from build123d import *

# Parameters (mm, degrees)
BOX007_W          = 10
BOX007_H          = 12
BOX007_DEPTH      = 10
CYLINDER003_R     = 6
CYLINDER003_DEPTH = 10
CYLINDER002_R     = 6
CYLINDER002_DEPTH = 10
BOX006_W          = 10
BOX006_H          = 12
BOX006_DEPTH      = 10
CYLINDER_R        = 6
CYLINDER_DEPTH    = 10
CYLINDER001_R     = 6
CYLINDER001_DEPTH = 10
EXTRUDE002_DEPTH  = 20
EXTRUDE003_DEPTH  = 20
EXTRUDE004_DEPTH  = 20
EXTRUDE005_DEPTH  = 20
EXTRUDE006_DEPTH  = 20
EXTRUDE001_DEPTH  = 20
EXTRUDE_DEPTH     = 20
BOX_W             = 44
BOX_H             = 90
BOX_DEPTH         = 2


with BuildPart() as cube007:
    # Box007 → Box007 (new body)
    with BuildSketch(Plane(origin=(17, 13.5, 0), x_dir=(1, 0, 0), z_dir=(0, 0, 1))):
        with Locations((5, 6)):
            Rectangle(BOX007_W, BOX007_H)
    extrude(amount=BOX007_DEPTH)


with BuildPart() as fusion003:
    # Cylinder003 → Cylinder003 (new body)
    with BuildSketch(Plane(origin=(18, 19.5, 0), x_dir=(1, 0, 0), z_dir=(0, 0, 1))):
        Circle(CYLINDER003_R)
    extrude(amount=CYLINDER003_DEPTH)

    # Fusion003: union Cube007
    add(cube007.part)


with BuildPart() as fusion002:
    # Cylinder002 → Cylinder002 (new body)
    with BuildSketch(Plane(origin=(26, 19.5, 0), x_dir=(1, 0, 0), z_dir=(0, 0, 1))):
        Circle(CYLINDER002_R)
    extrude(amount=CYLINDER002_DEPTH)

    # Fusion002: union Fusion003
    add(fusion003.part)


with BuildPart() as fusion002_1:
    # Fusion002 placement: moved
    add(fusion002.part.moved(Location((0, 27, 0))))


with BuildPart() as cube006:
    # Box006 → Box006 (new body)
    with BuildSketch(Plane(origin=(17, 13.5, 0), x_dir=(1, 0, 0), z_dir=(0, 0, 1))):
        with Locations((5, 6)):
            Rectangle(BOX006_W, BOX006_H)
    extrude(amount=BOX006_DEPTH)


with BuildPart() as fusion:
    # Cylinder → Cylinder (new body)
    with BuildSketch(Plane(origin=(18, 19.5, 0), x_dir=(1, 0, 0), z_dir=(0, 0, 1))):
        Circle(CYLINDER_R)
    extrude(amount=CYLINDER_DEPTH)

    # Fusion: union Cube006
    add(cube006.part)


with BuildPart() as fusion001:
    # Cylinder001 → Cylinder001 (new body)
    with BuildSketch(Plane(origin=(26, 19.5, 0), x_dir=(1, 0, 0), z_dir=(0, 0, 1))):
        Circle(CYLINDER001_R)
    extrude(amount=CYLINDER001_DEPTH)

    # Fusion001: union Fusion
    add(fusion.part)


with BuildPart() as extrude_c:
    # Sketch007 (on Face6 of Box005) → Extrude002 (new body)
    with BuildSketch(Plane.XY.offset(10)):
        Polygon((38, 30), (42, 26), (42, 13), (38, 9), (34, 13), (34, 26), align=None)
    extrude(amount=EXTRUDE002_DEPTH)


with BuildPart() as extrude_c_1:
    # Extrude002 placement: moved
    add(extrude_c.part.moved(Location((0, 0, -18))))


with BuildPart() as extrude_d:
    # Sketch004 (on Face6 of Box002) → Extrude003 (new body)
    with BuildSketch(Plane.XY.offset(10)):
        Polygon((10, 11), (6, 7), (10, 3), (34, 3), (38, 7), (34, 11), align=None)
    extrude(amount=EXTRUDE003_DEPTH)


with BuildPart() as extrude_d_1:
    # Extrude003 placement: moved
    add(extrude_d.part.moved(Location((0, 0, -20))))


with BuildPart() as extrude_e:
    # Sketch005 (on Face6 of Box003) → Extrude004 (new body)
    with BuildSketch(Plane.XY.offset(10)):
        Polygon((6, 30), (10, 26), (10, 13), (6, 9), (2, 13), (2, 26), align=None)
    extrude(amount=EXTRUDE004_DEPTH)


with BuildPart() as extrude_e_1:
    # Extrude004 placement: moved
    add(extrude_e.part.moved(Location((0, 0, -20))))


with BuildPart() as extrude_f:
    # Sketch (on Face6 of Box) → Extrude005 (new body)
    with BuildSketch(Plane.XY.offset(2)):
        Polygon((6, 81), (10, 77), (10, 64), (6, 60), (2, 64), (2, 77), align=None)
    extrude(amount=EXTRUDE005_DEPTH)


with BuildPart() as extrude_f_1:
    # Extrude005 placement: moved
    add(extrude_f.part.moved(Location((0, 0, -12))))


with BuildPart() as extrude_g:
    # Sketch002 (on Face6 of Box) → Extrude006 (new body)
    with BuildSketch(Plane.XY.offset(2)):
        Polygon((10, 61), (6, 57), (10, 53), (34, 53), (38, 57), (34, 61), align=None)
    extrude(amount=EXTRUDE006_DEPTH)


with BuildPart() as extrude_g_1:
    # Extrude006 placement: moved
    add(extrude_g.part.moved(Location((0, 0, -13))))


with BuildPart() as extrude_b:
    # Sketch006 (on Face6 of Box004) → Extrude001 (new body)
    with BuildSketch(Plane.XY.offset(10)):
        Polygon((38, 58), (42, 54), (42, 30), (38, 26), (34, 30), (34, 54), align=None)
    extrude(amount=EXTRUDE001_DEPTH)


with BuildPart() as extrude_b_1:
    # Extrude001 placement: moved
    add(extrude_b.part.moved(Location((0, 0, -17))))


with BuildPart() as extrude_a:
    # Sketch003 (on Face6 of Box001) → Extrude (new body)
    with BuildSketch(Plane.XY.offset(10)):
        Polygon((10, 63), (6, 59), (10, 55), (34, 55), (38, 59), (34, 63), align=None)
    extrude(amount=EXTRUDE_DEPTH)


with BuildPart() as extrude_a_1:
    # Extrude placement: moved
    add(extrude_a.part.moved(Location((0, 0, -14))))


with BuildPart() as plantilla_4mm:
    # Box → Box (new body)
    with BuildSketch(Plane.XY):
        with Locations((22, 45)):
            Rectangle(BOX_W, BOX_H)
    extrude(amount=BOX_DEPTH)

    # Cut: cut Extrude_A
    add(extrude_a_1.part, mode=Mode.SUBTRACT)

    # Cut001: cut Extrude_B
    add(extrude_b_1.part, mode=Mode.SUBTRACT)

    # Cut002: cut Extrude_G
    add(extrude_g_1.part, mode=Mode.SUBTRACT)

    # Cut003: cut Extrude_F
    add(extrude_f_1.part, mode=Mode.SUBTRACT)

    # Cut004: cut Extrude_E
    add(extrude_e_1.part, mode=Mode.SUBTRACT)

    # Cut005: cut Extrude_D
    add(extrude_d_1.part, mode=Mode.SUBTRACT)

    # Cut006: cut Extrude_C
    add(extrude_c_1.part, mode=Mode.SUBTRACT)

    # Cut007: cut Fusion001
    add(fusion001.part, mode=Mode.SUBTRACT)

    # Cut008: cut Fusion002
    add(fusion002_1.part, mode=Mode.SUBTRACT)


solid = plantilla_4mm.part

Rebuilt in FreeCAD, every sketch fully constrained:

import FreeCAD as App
import Part
import Sketcher
Q = App.Units.Quantity


def add_polygon(sketch, points):
    """Adds a closed chain of lines whose ends are joined by coincident constraints."""
    first, n = sketch.GeometryCount, len(points)
    for a, b in zip(points, points[1:] + points[:1]):
        sketch.addGeometry(Part.LineSegment(App.Vector(*a, 0), App.Vector(*b, 0)), False)
    for i in range(n):
        sketch.addConstraint(Sketcher.Constraint("Coincident", first + i, 2, first + (i + 1) % n, 1))

doc = App.newDocument("Part")
params = doc.addObject("Spreadsheet::Sheet", "Params")
for row, (alias, value) in enumerate([
    ("sketch1_width", "10 mm"),
    ("sketch1_height", "12 mm"),
    ("pad1_length", "10 mm"),
    ("sketch2_diameter", "12 mm"),
    ("pad2_length", "10 mm"),
    ("sketch3_diameter", "12 mm"),
    ("pad3_length", "10 mm"),
    ("sketch4_width", "10 mm"),
    ("sketch4_height", "12 mm"),
    ("pad4_length", "10 mm"),
    ("sketch5_diameter", "12 mm"),
    ("pad5_length", "10 mm"),
    ("sketch6_diameter", "12 mm"),
    ("pad6_length", "10 mm"),
    ("sketch7_height", "13 mm"),
    ("pad7_length", "20 mm"),
    ("sketch8_width", "24 mm"),
    ("pad8_length", "20 mm"),
    ("sketch9_height", "13 mm"),
    ("pad9_length", "20 mm"),
    ("sketch10_height", "13 mm"),
    ("pad10_length", "20 mm"),
    ("sketch11_width", "24 mm"),
    ("pad11_length", "20 mm"),
    ("sketch12_height", "24 mm"),
    ("pad12_length", "20 mm"),
    ("sketch13_width", "24 mm"),
    ("pad13_length", "20 mm"),
    ("sketch14_width", "44 mm"),
    ("sketch14_height", "90 mm"),
    ("pad14_length", "2 mm"),
], start=1):
    params.set(f"A{row}", alias)
    params.set(f"B{row}", "=" + value)
    params.setAlias(f"B{row}", alias)

body = doc.addObject("PartDesign::Body", "Body")

# Sketch on XY plane
sketch1 = body.newObject("Sketcher::SketchObject", "Sketch")
sketch1.AttachmentSupport = (doc.getObject("XY_Plane"), [""])
sketch1.MapMode = "FlatFace"
add_polygon(sketch1, [(17, 25.5), (17, 13.5), (27, 13.5), (27, 25.5)])  # lines 0-3
sketch1.addConstraint([
    Sketcher.Constraint("Vertical", 0),
    Sketcher.Constraint("Horizontal", 1),
    Sketcher.Constraint("Vertical", 2),
    Sketcher.Constraint("Horizontal", 3),
    Sketcher.Constraint("DistanceX", 1, 1, 1, 2, Q("10 mm")),
    Sketcher.Constraint("DistanceY", 0, 2, 0, 1, Q("12 mm")),
    Sketcher.Constraint("DistanceX", -1, 1, 0, 2, Q("17 mm")),
    Sketcher.Constraint("DistanceY", -1, 1, 0, 2, Q("13.5 mm")),
])
sketch1.setExpression("Constraints[8]", "Params.sketch1_width")
sketch1.setExpression("Constraints[9]", "Params.sketch1_height")
pad1 = body.newObject("PartDesign::Pad", "Pad")
pad1.Profile = sketch1
pad1.setExpression("Length", "Params.pad1_length")
body2 = doc.addObject("PartDesign::Body", "Body001")

# Sketch on XY plane
sketch2 = body2.newObject("Sketcher::SketchObject", "Sketch001")
sketch2.AttachmentSupport = (doc.getObject("XY_Plane001"), [""])
sketch2.MapMode = "FlatFace"
sketch2.addGeometry(Part.Circle(App.Vector(18, 19.5, 0), App.Vector(0, 0, 1), 6), False)
sketch2.addConstraint([
    Sketcher.Constraint("Diameter", 0, Q("12 mm")),
    Sketcher.Constraint("DistanceX", -1, 1, 0, 3, Q("18 mm")),
    Sketcher.Constraint("DistanceY", -1, 1, 0, 3, Q("19.5 mm")),
])
sketch2.setExpression("Constraints[0]", "Params.sketch2_diameter")
pad2 = body2.newObject("PartDesign::Pad", "Pad001")
pad2.Profile = sketch2
pad2.setExpression("Length", "Params.pad2_length")
doc.recompute()

boolean = body2.newObject("PartDesign::Boolean", "Boolean")
boolean.Type = "Fuse"
boolean.addObjects([body])
body3 = doc.addObject("PartDesign::Body", "Body002")

# Sketch on XY plane
sketch3 = body3.newObject("Sketcher::SketchObject", "Sketch002")
sketch3.AttachmentSupport = (doc.getObject("XY_Plane002"), [""])
sketch3.MapMode = "FlatFace"
sketch3.addGeometry(Part.Circle(App.Vector(26, 19.5, 0), App.Vector(0, 0, 1), 6), False)
sketch3.addConstraint([
    Sketcher.Constraint("Diameter", 0, Q("12 mm")),
    Sketcher.Constraint("DistanceX", -1, 1, 0, 3, Q("26 mm")),
    Sketcher.Constraint("DistanceY", -1, 1, 0, 3, Q("19.5 mm")),
])
sketch3.setExpression("Constraints[0]", "Params.sketch3_diameter")
pad3 = body3.newObject("PartDesign::Pad", "Pad002")
pad3.Profile = sketch3
pad3.setExpression("Length", "Params.pad3_length")
doc.recompute()

boolean2 = body3.newObject("PartDesign::Boolean", "Boolean001")
boolean2.Type = "Fuse"
boolean2.addObjects([body2])
body4 = doc.addObject("PartDesign::Body", "Body003")
doc.recompute()

body3.Placement = App.Placement(App.Vector(0, 27, 0), App.Rotation(App.Vector(0, 0, 1), 0))
boolean3 = body4.newObject("PartDesign::Boolean", "Boolean002")
boolean3.Type = "Fuse"
boolean3.addObjects([body3])
body5 = doc.addObject("PartDesign::Body", "Body004")

# Sketch on XY plane
sketch4 = body5.newObject("Sketcher::SketchObject", "Sketch003")
sketch4.AttachmentSupport = (doc.getObject("XY_Plane004"), [""])
sketch4.MapMode = "FlatFace"
add_polygon(sketch4, [(17, 25.5), (17, 13.5), (27, 13.5), (27, 25.5)])  # lines 0-3
sketch4.addConstraint([
    Sketcher.Constraint("Vertical", 0),
    Sketcher.Constraint("Horizontal", 1),
    Sketcher.Constraint("Vertical", 2),
    Sketcher.Constraint("Horizontal", 3),
    Sketcher.Constraint("DistanceX", 1, 1, 1, 2, Q("10 mm")),
    Sketcher.Constraint("DistanceY", 0, 2, 0, 1, Q("12 mm")),
    Sketcher.Constraint("DistanceX", -1, 1, 0, 2, Q("17 mm")),
    Sketcher.Constraint("DistanceY", -1, 1, 0, 2, Q("13.5 mm")),
])
sketch4.setExpression("Constraints[8]", "Params.sketch4_width")
sketch4.setExpression("Constraints[9]", "Params.sketch4_height")
pad4 = body5.newObject("PartDesign::Pad", "Pad003")
pad4.Profile = sketch4
pad4.setExpression("Length", "Params.pad4_length")
body6 = doc.addObject("PartDesign::Body", "Body005")

# Sketch on XY plane
sketch5 = body6.newObject("Sketcher::SketchObject", "Sketch004")
sketch5.AttachmentSupport = (doc.getObject("XY_Plane005"), [""])
sketch5.MapMode = "FlatFace"
sketch5.addGeometry(Part.Circle(App.Vector(18, 19.5, 0), App.Vector(0, 0, 1), 6), False)
sketch5.addConstraint([
    Sketcher.Constraint("Diameter", 0, Q("12 mm")),
    Sketcher.Constraint("DistanceX", -1, 1, 0, 3, Q("18 mm")),
    Sketcher.Constraint("DistanceY", -1, 1, 0, 3, Q("19.5 mm")),
])
sketch5.setExpression("Constraints[0]", "Params.sketch5_diameter")
pad5 = body6.newObject("PartDesign::Pad", "Pad004")
pad5.Profile = sketch5
pad5.setExpression("Length", "Params.pad5_length")
doc.recompute()

boolean4 = body6.newObject("PartDesign::Boolean", "Boolean003")
boolean4.Type = "Fuse"
boolean4.addObjects([body5])
body7 = doc.addObject("PartDesign::Body", "Body006")

# Sketch on XY plane
sketch6 = body7.newObject("Sketcher::SketchObject", "Sketch005")
sketch6.AttachmentSupport = (doc.getObject("XY_Plane006"), [""])
sketch6.MapMode = "FlatFace"
sketch6.addGeometry(Part.Circle(App.Vector(26, 19.5, 0), App.Vector(0, 0, 1), 6), False)
sketch6.addConstraint([
    Sketcher.Constraint("Diameter", 0, Q("12 mm")),
    Sketcher.Constraint("DistanceX", -1, 1, 0, 3, Q("26 mm")),
    Sketcher.Constraint("DistanceY", -1, 1, 0, 3, Q("19.5 mm")),
])
sketch6.setExpression("Constraints[0]", "Params.sketch6_diameter")
pad6 = body7.newObject("PartDesign::Pad", "Pad005")
pad6.Profile = sketch6
pad6.setExpression("Length", "Params.pad6_length")
doc.recompute()

boolean5 = body7.newObject("PartDesign::Boolean", "Boolean004")
boolean5.Type = "Fuse"
boolean5.addObjects([body6])
body8 = doc.addObject("PartDesign::Body", "Body007")

# Sketch on XY plane
sketch7 = body8.newObject("Sketcher::SketchObject", "Sketch006")
sketch7.AttachmentSupport = (doc.getObject("XY_Plane007"), [""])
sketch7.MapMode = "FlatFace"
sketch7.AttachmentOffset = App.Placement(App.Vector(0, 0, 10), App.Rotation())
add_polygon(sketch7, [(42, 26), (38, 30), (34, 26), (34, 13), (38, 9), (42, 13)])  # lines 0-5
sketch7.addConstraint([
    Sketcher.Constraint("Vertical", 2),
    Sketcher.Constraint("Vertical", 5),
    Sketcher.Constraint("Perpendicular", 0, 1),
    Sketcher.Constraint("Perpendicular", 1, 3),
    Sketcher.Constraint("Perpendicular", 3, 4),
    Sketcher.Constraint("Horizontal", 2, 2, 4, 2),
    Sketcher.Constraint("Horizontal", 1, 2, 5, 2),
    Sketcher.Constraint("Vertical", 0, 2, 3, 2),
    Sketcher.Constraint("DistanceY", 2, 2, 2, 1, Q("13 mm")),
    Sketcher.Constraint("DistanceX", -1, 1, 0, 2, Q("38 mm")),
    Sketcher.Constraint("DistanceY", -1, 1, 0, 2, Q("30 mm")),
    Sketcher.Constraint("DistanceX", -1, 1, 1, 2, Q("34 mm")),
])
sketch7.setExpression("Constraints[14]", "Params.sketch7_height")
pad7 = body8.newObject("PartDesign::Pad", "Pad006")
pad7.Profile = sketch7
pad7.setExpression("Length", "Params.pad7_length")
body9 = doc.addObject("PartDesign::Body", "Body008")
doc.recompute()

body8.Placement = App.Placement(App.Vector(0, 0, -18), App.Rotation(App.Vector(0, 0, 1), 0))
boolean6 = body9.newObject("PartDesign::Boolean", "Boolean005")
boolean6.Type = "Fuse"
boolean6.addObjects([body8])
body10 = doc.addObject("PartDesign::Body", "Body009")

# Sketch on XY plane
sketch8 = body10.newObject("Sketcher::SketchObject", "Sketch007")
sketch8.AttachmentSupport = (doc.getObject("XY_Plane009"), [""])
sketch8.MapMode = "FlatFace"
sketch8.AttachmentOffset = App.Placement(App.Vector(0, 0, 10), App.Rotation())
add_polygon(sketch8, [(10, 11), (6, 7), (10, 3), (34, 3), (38, 7), (34, 11)])  # lines 0-5
sketch8.addConstraint([
    Sketcher.Constraint("Horizontal", 2),
    Sketcher.Constraint("Horizontal", 5),
    Sketcher.Constraint("Perpendicular", 0, 1),
    Sketcher.Constraint("Perpendicular", 1, 3),
    Sketcher.Constraint("Perpendicular", 3, 4),
    Sketcher.Constraint("Horizontal", 0, 2, 3, 2),
    Sketcher.Constraint("Vertical", 2, 2, 4, 2),
    Sketcher.Constraint("Vertical", 1, 2, 5, 2),
    Sketcher.Constraint("DistanceX", 2, 1, 2, 2, Q("24 mm")),
    Sketcher.Constraint("DistanceX", -1, 1, 0, 2, Q("6 mm")),
    Sketcher.Constraint("DistanceY", -1, 1, 0, 2, Q("7 mm")),
    Sketcher.Constraint("DistanceX", -1, 1, 1, 2, Q("10 mm")),
])
sketch8.setExpression("Constraints[14]", "Params.sketch8_width")
pad8 = body10.newObject("PartDesign::Pad", "Pad007")
pad8.Profile = sketch8
pad8.setExpression("Length", "Params.pad8_length")
body11 = doc.addObject("PartDesign::Body", "Body010")
doc.recompute()

body10.Placement = App.Placement(App.Vector(0, 0, -20), App.Rotation(App.Vector(0, 0, 1), 0))
boolean7 = body11.newObject("PartDesign::Boolean", "Boolean006")
boolean7.Type = "Fuse"
boolean7.addObjects([body10])
body12 = doc.addObject("PartDesign::Body", "Body011")

# Sketch on XY plane
sketch9 = body12.newObject("Sketcher::SketchObject", "Sketch008")
sketch9.AttachmentSupport = (doc.getObject("XY_Plane011"), [""])
sketch9.MapMode = "FlatFace"
sketch9.AttachmentOffset = App.Placement(App.Vector(0, 0, 10), App.Rotation())
add_polygon(sketch9, [(10, 26), (6, 30), (2, 26), (2, 13), (6, 9), (10, 13)])  # lines 0-5
sketch9.addConstraint([
    Sketcher.Constraint("Vertical", 2),
    Sketcher.Constraint("Vertical", 5),
    Sketcher.Constraint("Perpendicular", 0, 1),
    Sketcher.Constraint("Perpendicular", 1, 3),
    Sketcher.Constraint("Perpendicular", 3, 4),
    Sketcher.Constraint("Horizontal", 2, 2, 4, 2),
    Sketcher.Constraint("Horizontal", 1, 2, 5, 2),
    Sketcher.Constraint("Vertical", 0, 2, 3, 2),
    Sketcher.Constraint("DistanceY", 2, 2, 2, 1, Q("13 mm")),
    Sketcher.Constraint("DistanceX", -1, 1, 0, 2, Q("6 mm")),
    Sketcher.Constraint("DistanceY", -1, 1, 0, 2, Q("30 mm")),
    Sketcher.Constraint("DistanceX", -1, 1, 1, 2, Q("2 mm")),
])
sketch9.setExpression("Constraints[14]", "Params.sketch9_height")
pad9 = body12.newObject("PartDesign::Pad", "Pad008")
pad9.Profile = sketch9
pad9.setExpression("Length", "Params.pad9_length")
body13 = doc.addObject("PartDesign::Body", "Body012")
doc.recompute()

body12.Placement = App.Placement(App.Vector(0, 0, -20), App.Rotation(App.Vector(0, 0, 1), 0))
boolean8 = body13.newObject("PartDesign::Boolean", "Boolean007")
boolean8.Type = "Fuse"
boolean8.addObjects([body12])
body14 = doc.addObject("PartDesign::Body", "Body013")

# Sketch on XY plane
sketch10 = body14.newObject("Sketcher::SketchObject", "Sketch009")
sketch10.AttachmentSupport = (doc.getObject("XY_Plane013"), [""])
sketch10.MapMode = "FlatFace"
sketch10.AttachmentOffset = App.Placement(App.Vector(0, 0, 2), App.Rotation())
add_polygon(sketch10, [(10, 77), (6, 81), (2, 77), (2, 64), (6, 60), (10, 64)])  # lines 0-5
sketch10.addConstraint([
    Sketcher.Constraint("Vertical", 2),
    Sketcher.Constraint("Vertical", 5),
    Sketcher.Constraint("Perpendicular", 0, 1),
    Sketcher.Constraint("Perpendicular", 1, 3),
    Sketcher.Constraint("Perpendicular", 3, 4),
    Sketcher.Constraint("Horizontal", 2, 2, 4, 2),
    Sketcher.Constraint("Horizontal", 1, 2, 5, 2),
    Sketcher.Constraint("Vertical", 0, 2, 3, 2),
    Sketcher.Constraint("DistanceY", 2, 2, 2, 1, Q("13 mm")),
    Sketcher.Constraint("DistanceX", -1, 1, 0, 2, Q("6 mm")),
    Sketcher.Constraint("DistanceY", -1, 1, 0, 2, Q("81 mm")),
    Sketcher.Constraint("DistanceX", -1, 1, 1, 2, Q("2 mm")),
])
sketch10.setExpression("Constraints[14]", "Params.sketch10_height")
pad10 = body14.newObject("PartDesign::Pad", "Pad009")
pad10.Profile = sketch10
pad10.setExpression("Length", "Params.pad10_length")
body15 = doc.addObject("PartDesign::Body", "Body014")
doc.recompute()

body14.Placement = App.Placement(App.Vector(0, 0, -12), App.Rotation(App.Vector(0, 0, 1), 0))
boolean9 = body15.newObject("PartDesign::Boolean", "Boolean008")
boolean9.Type = "Fuse"
boolean9.addObjects([body14])
body16 = doc.addObject("PartDesign::Body", "Body015")

# Sketch on XY plane
sketch11 = body16.newObject("Sketcher::SketchObject", "Sketch010")
sketch11.AttachmentSupport = (doc.getObject("XY_Plane015"), [""])
sketch11.MapMode = "FlatFace"
sketch11.AttachmentOffset = App.Placement(App.Vector(0, 0, 2), App.Rotation())
add_polygon(sketch11, [(10, 61), (6, 57), (10, 53), (34, 53), (38, 57), (34, 61)])  # lines 0-5
sketch11.addConstraint([
    Sketcher.Constraint("Horizontal", 2),
    Sketcher.Constraint("Horizontal", 5),
    Sketcher.Constraint("Perpendicular", 0, 1),
    Sketcher.Constraint("Perpendicular", 1, 3),
    Sketcher.Constraint("Perpendicular", 3, 4),
    Sketcher.Constraint("Horizontal", 0, 2, 3, 2),
    Sketcher.Constraint("Vertical", 2, 2, 4, 2),
    Sketcher.Constraint("Vertical", 1, 2, 5, 2),
    Sketcher.Constraint("DistanceX", 2, 1, 2, 2, Q("24 mm")),
    Sketcher.Constraint("DistanceX", -1, 1, 0, 2, Q("6 mm")),
    Sketcher.Constraint("DistanceY", -1, 1, 0, 2, Q("57 mm")),
    Sketcher.Constraint("DistanceX", -1, 1, 1, 2, Q("10 mm")),
])
sketch11.setExpression("Constraints[14]", "Params.sketch11_width")
pad11 = body16.newObject("PartDesign::Pad", "Pad010")
pad11.Profile = sketch11
pad11.setExpression("Length", "Params.pad11_length")
body17 = doc.addObject("PartDesign::Body", "Body016")
doc.recompute()

body16.Placement = App.Placement(App.Vector(0, 0, -13), App.Rotation(App.Vector(0, 0, 1), 0))
boolean10 = body17.newObject("PartDesign::Boolean", "Boolean009")
boolean10.Type = "Fuse"
boolean10.addObjects([body16])
body18 = doc.addObject("PartDesign::Body", "Body017")

# Sketch on XY plane
sketch12 = body18.newObject("Sketcher::SketchObject", "Sketch011")
sketch12.AttachmentSupport = (doc.getObject("XY_Plane017"), [""])
sketch12.MapMode = "FlatFace"
sketch12.AttachmentOffset = App.Placement(App.Vector(0, 0, 10), App.Rotation())
add_polygon(sketch12, [(42, 54), (38, 58), (34, 54), (34, 30), (38, 26), (42, 30)])  # lines 0-5
sketch12.addConstraint([
    Sketcher.Constraint("Vertical", 2),
    Sketcher.Constraint("Vertical", 5),
    Sketcher.Constraint("Perpendicular", 0, 1),
    Sketcher.Constraint("Perpendicular", 1, 3),
    Sketcher.Constraint("Perpendicular", 3, 4),
    Sketcher.Constraint("Horizontal", 2, 2, 4, 2),
    Sketcher.Constraint("Horizontal", 1, 2, 5, 2),
    Sketcher.Constraint("Vertical", 0, 2, 3, 2),
    Sketcher.Constraint("DistanceY", 2, 2, 2, 1, Q("24 mm")),
    Sketcher.Constraint("DistanceX", -1, 1, 0, 2, Q("38 mm")),
    Sketcher.Constraint("DistanceY", -1, 1, 0, 2, Q("58 mm")),
    Sketcher.Constraint("DistanceX", -1, 1, 1, 2, Q("34 mm")),
])
sketch12.setExpression("Constraints[14]", "Params.sketch12_height")
pad12 = body18.newObject("PartDesign::Pad", "Pad011")
pad12.Profile = sketch12
pad12.setExpression("Length", "Params.pad12_length")
body19 = doc.addObject("PartDesign::Body", "Body018")
doc.recompute()

body18.Placement = App.Placement(App.Vector(0, 0, -17), App.Rotation(App.Vector(0, 0, 1), 0))
boolean11 = body19.newObject("PartDesign::Boolean", "Boolean010")
boolean11.Type = "Fuse"
boolean11.addObjects([body18])
body20 = doc.addObject("PartDesign::Body", "Body019")

# Sketch on XY plane
sketch13 = body20.newObject("Sketcher::SketchObject", "Sketch012")
sketch13.AttachmentSupport = (doc.getObject("XY_Plane019"), [""])
sketch13.MapMode = "FlatFace"
sketch13.AttachmentOffset = App.Placement(App.Vector(0, 0, 10), App.Rotation())
add_polygon(sketch13, [(10, 63), (6, 59), (10, 55), (34, 55), (38, 59), (34, 63)])  # lines 0-5
sketch13.addConstraint([
    Sketcher.Constraint("Horizontal", 2),
    Sketcher.Constraint("Horizontal", 5),
    Sketcher.Constraint("Perpendicular", 0, 1),
    Sketcher.Constraint("Perpendicular", 1, 3),
    Sketcher.Constraint("Perpendicular", 3, 4),
    Sketcher.Constraint("Horizontal", 0, 2, 3, 2),
    Sketcher.Constraint("Vertical", 2, 2, 4, 2),
    Sketcher.Constraint("Vertical", 1, 2, 5, 2),
    Sketcher.Constraint("DistanceX", 2, 1, 2, 2, Q("24 mm")),
    Sketcher.Constraint("DistanceX", -1, 1, 0, 2, Q("6 mm")),
    Sketcher.Constraint("DistanceY", -1, 1, 0, 2, Q("59 mm")),
    Sketcher.Constraint("DistanceX", -1, 1, 1, 2, Q("10 mm")),
])
sketch13.setExpression("Constraints[14]", "Params.sketch13_width")
pad13 = body20.newObject("PartDesign::Pad", "Pad012")
pad13.Profile = sketch13
pad13.setExpression("Length", "Params.pad13_length")
body21 = doc.addObject("PartDesign::Body", "Body020")
doc.recompute()

body20.Placement = App.Placement(App.Vector(0, 0, -14), App.Rotation(App.Vector(0, 0, 1), 0))
boolean12 = body21.newObject("PartDesign::Boolean", "Boolean011")
boolean12.Type = "Fuse"
boolean12.addObjects([body20])
body22 = doc.addObject("PartDesign::Body", "Body021")

# Sketch on XY plane
sketch14 = body22.newObject("Sketcher::SketchObject", "Sketch013")
sketch14.AttachmentSupport = (doc.getObject("XY_Plane021"), [""])
sketch14.MapMode = "FlatFace"
add_polygon(sketch14, [(0, 90), (0, 0), (44, 0), (44, 90)])  # lines 0-3
sketch14.addConstraint([
    Sketcher.Constraint("Vertical", 0),
    Sketcher.Constraint("Horizontal", 1),
    Sketcher.Constraint("Vertical", 2),
    Sketcher.Constraint("Horizontal", 3),
    Sketcher.Constraint("Coincident", 0, 2, -1, 1),
    Sketcher.Constraint("DistanceX", 1, 1, 1, 2, Q("44 mm")),
    Sketcher.Constraint("DistanceY", 0, 2, 0, 1, Q("90 mm")),
])
sketch14.setExpression("Constraints[9]", "Params.sketch14_width")
sketch14.setExpression("Constraints[10]", "Params.sketch14_height")
pad14 = body22.newObject("PartDesign::Pad", "Pad013")
pad14.Profile = sketch14
pad14.setExpression("Length", "Params.pad14_length")
doc.recompute()

boolean13 = body22.newObject("PartDesign::Boolean", "Boolean012")
boolean13.Type = "Cut"
boolean13.addObjects([body21])
doc.recompute()

boolean14 = body22.newObject("PartDesign::Boolean", "Boolean013")
boolean14.Type = "Cut"
boolean14.addObjects([body19])
doc.recompute()

boolean15 = body22.newObject("PartDesign::Boolean", "Boolean014")
boolean15.Type = "Cut"
boolean15.addObjects([body17])
doc.recompute()

boolean16 = body22.newObject("PartDesign::Boolean", "Boolean015")
boolean16.Type = "Cut"
boolean16.addObjects([body15])
doc.recompute()

boolean17 = body22.newObject("PartDesign::Boolean", "Boolean016")
boolean17.Type = "Cut"
boolean17.addObjects([body13])
doc.recompute()

boolean18 = body22.newObject("PartDesign::Boolean", "Boolean017")
boolean18.Type = "Cut"
boolean18.addObjects([body11])
doc.recompute()

boolean19 = body22.newObject("PartDesign::Boolean", "Boolean018")
boolean19.Type = "Cut"
boolean19.addObjects([body9])
doc.recompute()

boolean20 = body22.newObject("PartDesign::Boolean", "Boolean019")
boolean20.Type = "Cut"
boolean20.addObjects([body7])
doc.recompute()

boolean21 = body22.newObject("PartDesign::Boolean", "Boolean020")
boolean21.Type = "Cut"
boolean21.addObjects([body4])

doc.recompute()
